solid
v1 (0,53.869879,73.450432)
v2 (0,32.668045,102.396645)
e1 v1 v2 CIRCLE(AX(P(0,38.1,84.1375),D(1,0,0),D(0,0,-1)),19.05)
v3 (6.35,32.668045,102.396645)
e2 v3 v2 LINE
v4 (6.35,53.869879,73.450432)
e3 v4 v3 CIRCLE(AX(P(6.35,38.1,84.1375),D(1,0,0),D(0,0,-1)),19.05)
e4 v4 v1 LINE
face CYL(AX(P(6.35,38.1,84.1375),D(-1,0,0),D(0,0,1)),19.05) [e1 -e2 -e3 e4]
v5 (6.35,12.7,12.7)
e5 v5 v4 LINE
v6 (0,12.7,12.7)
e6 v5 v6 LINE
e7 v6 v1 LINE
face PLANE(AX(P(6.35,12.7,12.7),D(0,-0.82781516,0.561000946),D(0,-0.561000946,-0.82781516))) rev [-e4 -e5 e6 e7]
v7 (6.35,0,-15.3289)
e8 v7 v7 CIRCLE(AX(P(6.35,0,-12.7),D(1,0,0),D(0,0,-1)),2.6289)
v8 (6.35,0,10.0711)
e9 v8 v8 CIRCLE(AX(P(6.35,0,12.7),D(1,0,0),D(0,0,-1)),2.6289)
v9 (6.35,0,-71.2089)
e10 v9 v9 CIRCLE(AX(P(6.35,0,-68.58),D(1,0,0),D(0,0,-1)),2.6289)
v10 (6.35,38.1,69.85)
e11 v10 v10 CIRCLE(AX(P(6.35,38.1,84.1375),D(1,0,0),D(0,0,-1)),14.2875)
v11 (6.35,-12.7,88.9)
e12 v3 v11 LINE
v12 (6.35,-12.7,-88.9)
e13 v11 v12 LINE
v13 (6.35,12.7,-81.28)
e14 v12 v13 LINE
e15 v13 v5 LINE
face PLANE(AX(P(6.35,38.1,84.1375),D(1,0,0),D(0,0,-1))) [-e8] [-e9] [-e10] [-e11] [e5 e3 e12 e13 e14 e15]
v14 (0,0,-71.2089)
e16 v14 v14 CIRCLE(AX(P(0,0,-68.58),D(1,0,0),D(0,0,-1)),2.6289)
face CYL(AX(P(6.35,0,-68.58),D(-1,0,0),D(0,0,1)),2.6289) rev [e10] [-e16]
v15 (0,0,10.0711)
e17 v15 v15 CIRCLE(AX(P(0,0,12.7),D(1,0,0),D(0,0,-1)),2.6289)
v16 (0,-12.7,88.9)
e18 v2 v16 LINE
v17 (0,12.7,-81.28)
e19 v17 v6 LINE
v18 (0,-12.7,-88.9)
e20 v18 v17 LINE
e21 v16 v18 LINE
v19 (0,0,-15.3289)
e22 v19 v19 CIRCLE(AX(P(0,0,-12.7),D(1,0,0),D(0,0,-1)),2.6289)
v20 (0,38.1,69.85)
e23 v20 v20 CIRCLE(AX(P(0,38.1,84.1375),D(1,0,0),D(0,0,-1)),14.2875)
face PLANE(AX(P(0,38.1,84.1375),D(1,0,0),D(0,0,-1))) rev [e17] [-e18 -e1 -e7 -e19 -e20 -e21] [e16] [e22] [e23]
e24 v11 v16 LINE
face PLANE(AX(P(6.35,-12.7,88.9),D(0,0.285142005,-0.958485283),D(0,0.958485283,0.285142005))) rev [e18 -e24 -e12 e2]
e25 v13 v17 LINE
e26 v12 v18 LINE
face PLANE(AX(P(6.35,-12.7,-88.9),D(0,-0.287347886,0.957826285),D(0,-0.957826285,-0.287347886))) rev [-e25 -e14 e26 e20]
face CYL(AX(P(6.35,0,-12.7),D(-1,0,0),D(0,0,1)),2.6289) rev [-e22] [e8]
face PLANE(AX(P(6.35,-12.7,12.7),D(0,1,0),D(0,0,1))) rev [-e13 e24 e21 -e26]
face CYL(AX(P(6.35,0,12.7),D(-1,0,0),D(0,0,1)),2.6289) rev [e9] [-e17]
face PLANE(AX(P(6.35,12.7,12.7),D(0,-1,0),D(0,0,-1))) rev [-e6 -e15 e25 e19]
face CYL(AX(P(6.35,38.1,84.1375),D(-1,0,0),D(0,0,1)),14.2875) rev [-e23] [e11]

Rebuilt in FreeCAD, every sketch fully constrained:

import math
import FreeCAD as App
import Part
import Sketcher
Q = App.Units.Quantity

doc = App.newDocument("Part")
params = doc.addObject("Spreadsheet::Sheet", "Params")
for row, (alias, value) in enumerate([
    ("sketch1_height", "7 in"),
    ("sketch1_radius", "0.75 in"),
    ("sketch1_diameter", "0.207 in"),
    ("sketch1_diameter2", "1.125 in"),
    ("sketch1_height2", "3.7 in"),
    ("pad1_length", "0.25 in"),
], start=1):
    params.set(f"A{row}", alias)
    params.set(f"B{row}", "=" + value)
    params.setAlias(f"B{row}", alias)

body = doc.addObject("PartDesign::Body", "Body")

# Sketch on YZ plane
sketch1 = doc.addObject("Sketcher::SketchObject", "Sketch")
body.addObject(sketch1)
sketch1.AttachmentSupport = (doc.YZ_Plane, [""])
sketch1.MapMode = "FlatFace"
sketch1.addGeometry(Part.LineSegment(App.Vector(32.7, 102.4, 0), App.Vector(-12.7, 88.9, 0)), False)
sketch1.addGeometry(Part.LineSegment(App.Vector(-12.7, 88.9, 0), App.Vector(-12.7, -88.9, 0)), False)
sketch1.addGeometry(Part.LineSegment(App.Vector(-12.7, -88.9, 0), App.Vector(12.7, -81.3, 0)), False)
sketch1.addGeometry(Part.LineSegment(App.Vector(12.7, -81.3, 0), App.Vector(12.7, 12.7, 0)), False)
sketch1.addGeometry(Part.LineSegment(App.Vector(12.7, 12.7, 0), App.Vector(53.9, 73.5, 0)), False)
sketch1.addGeometry(Part.ArcOfCircle(Part.Circle(App.Vector(38.1, 84.1, 0), App.Vector(0, 0, 1), 19.1), math.radians(-34), math.radians(107)), False)
sketch1.addGeometry(Part.Circle(App.Vector(0, -68.6, 0), App.Vector(0, 0, 1), 2.6), False)
sketch1.addGeometry(Part.Circle(App.Vector(0, -12.7, 0), App.Vector(0, 0, 1), 2.6), False)
sketch1.addGeometry(Part.Circle(App.Vector(0, 12.7, 0), App.Vector(0, 0, 1), 2.6), False)
sketch1.addGeometry(Part.Circle(App.Vector(38.1, 84.1, 0), App.Vector(0, 0, 1), 14.3), False)
sketch1.addConstraint(Sketcher.Constraint("Coincident", 0, 2, 1, 1))
sketch1.addConstraint(Sketcher.Constraint("Coincident", 1, 2, 2, 1))
sketch1.addConstraint(Sketcher.Constraint("Coincident", 2, 2, 3, 1))
sketch1.addConstraint(Sketcher.Constraint("Coincident", 3, 2, 4, 1))
sketch1.addConstraint(Sketcher.Constraint("Tangent", 4, 2, 5, 1))
sketch1.addConstraint(Sketcher.Constraint("Tangent", 5, 2, 0, 1))
sketch1.addConstraint(Sketcher.Constraint("Vertical", 1))
sketch1.addConstraint(Sketcher.Constraint("Vertical", 3))
sketch1.addConstraint(Sketcher.Constraint("Coincident", 9, 3, 5, 3))
sketch1.addConstraint(Sketcher.Constraint("Equal", 6, 7))
sketch1.addConstraint(Sketcher.Constraint("Equal", 7, 8))
sketch1.addConstraint(Sketcher.Constraint("Symmetric", 7, 3, 8, 3, -1, 1))
sketch1.addConstraint(Sketcher.Constraint("PointOnObject", 6, 3, -2))
sketch1.addConstraint(Sketcher.Constraint("PointOnObject", 7, 3, -2))
sketch1.addConstraint(Sketcher.Constraint("Horizontal", 8, 3, 3, 2))
sketch1.addConstraint(Sketcher.Constraint("DistanceY", 1, 2, 1, 1, Q("7 in")))
sketch1.addConstraint(Sketcher.Constraint("Radius", 5, Q("0.75 in")))
sketch1.addConstraint(Sketcher.Constraint("Diameter", 6, Q("0.207 in")))
sketch1.addConstraint(Sketcher.Constraint("Diameter", 9, Q("1.125 in")))
sketch1.addConstraint(Sketcher.Constraint("DistanceY", 3, 1, 3, 2, Q("3.7 in")))
sketch1.addConstraint(Sketcher.Constraint("DistanceY", 7, 3, 8, 3, Q("1 in")))
sketch1.addConstraint(Sketcher.Constraint("DistanceX", 0, 2, 5, 3, Q("2 in")))
sketch1.addConstraint(Sketcher.Constraint("DistanceY", 8, 3, 0, 2, Q("3 in")))
sketch1.addConstraint(Sketcher.Constraint("DistanceX", 1, 2, 2, 2, Q("1 in")))
sketch1.addConstraint(Sketcher.Constraint("DistanceX", -1, 1, 5, 3, Q("1.5 in")))
sketch1.addConstraint(Sketcher.Constraint("DistanceY", 6, 3, -1, 1, Q("2.7 in")))
sketch1.addConstraint(Sketcher.Constraint("DistanceY", -1, 1, 5, 3, Q("3.3125 in")))
sketch1.setExpression("Constraints[15]", "Params.sketch1_height")
sketch1.setExpression("Constraints[16]", "Params.sketch1_radius")
sketch1.setExpression("Constraints[17]", "Params.sketch1_diameter")
sketch1.setExpression("Constraints[18]", "Params.sketch1_diameter2")
sketch1.setExpression("Constraints[19]", "Params.sketch1_height2")
pad1 = doc.addObject("PartDesign::Pad", "Pad")
body.addObject(pad1)
pad1.Profile = sketch1
pad1.setExpression("Length", "Params.pad1_length")

doc.recompute()
